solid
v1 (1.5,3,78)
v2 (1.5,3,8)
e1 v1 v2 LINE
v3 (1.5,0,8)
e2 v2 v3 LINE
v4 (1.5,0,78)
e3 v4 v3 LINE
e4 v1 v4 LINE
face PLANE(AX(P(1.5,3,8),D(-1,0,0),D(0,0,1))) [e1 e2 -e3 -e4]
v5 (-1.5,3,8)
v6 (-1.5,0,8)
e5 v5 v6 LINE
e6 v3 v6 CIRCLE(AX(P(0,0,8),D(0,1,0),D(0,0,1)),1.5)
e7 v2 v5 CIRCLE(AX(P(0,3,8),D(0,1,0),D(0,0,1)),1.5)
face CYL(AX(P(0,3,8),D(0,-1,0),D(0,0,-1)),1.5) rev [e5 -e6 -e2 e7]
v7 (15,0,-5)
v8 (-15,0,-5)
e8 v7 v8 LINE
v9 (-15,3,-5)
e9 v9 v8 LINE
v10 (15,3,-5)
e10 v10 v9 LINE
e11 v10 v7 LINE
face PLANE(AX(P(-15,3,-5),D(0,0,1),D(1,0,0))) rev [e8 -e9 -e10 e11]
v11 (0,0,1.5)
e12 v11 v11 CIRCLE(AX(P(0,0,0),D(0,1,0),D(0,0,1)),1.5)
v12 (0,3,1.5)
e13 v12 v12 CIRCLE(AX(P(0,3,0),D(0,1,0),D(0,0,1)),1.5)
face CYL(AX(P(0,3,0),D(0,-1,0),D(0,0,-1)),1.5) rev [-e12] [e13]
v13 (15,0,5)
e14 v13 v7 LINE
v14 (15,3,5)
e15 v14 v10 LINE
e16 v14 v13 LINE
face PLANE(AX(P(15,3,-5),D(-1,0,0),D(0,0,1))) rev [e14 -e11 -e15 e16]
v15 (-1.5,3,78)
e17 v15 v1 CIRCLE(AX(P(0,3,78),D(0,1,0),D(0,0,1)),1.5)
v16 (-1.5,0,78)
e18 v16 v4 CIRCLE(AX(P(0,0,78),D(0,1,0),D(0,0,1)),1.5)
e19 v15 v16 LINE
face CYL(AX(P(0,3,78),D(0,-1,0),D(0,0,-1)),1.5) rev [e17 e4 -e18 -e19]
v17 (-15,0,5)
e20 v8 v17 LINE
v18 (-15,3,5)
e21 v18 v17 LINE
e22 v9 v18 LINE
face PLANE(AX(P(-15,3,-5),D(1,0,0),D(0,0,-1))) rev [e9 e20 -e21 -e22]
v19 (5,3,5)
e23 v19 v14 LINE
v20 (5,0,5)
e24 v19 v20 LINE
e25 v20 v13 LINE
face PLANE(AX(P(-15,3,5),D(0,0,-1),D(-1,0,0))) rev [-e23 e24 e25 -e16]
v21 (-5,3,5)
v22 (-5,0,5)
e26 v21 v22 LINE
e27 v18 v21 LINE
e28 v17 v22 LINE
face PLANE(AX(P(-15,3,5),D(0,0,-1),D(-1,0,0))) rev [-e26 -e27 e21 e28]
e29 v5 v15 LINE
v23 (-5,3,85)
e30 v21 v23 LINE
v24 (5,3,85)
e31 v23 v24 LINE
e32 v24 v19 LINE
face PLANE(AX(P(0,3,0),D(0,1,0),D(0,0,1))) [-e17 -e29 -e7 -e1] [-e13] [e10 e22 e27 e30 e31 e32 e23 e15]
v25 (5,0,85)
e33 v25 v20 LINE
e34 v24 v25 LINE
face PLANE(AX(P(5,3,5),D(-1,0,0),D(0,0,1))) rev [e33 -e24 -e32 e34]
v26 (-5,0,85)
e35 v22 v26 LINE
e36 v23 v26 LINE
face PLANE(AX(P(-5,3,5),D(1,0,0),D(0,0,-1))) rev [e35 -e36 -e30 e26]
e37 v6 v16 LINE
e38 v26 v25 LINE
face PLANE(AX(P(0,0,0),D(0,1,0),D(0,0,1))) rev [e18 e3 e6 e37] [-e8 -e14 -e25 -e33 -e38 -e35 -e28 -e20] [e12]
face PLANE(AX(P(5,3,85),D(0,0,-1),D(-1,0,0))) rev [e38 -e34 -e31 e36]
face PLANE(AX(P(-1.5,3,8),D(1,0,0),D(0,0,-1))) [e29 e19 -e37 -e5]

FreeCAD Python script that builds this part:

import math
import FreeCAD as App
import Part
import Sketcher

V = App.Vector


def add_polygon(sketch, points):
    """Adds a closed chain of lines whose ends are joined by coincident constraints."""
    first, n = sketch.GeometryCount, len(points)
    for a, b in zip(points, points[1:] + points[:1]):
        sketch.addGeometry(Part.LineSegment(App.Vector(*a, 0), App.Vector(*b, 0)), False)
    for i in range(n):
        sketch.addConstraint(Sketcher.Constraint("Coincident", first + i, 2, first + (i + 1) % n, 1))

doc = App.newDocument("Part")
body = doc.addObject("PartDesign::Body", "Body")

# Sketch on XZ plane
sketch1 = body.newObject("Sketcher::SketchObject", "Sketch")
sketch1.AttachmentSupport = (doc.getObject("XZ_Plane"), [""])
sketch1.MapMode = "FlatFace"
add_polygon(sketch1, [(-15, -5), (-15, 5), (15, 5), (15, -5)])  # lines 0-3
sketch1.addGeometry(Part.Circle(V(0, 0, 0), V(0, 0, 1), 1.5), False)  # 4
sketch1.addConstraint([
    Sketcher.Constraint("Vertical", 0),
    Sketcher.Constraint("Horizontal", 1),
    Sketcher.Constraint("Vertical", 2),
    Sketcher.Constraint("Horizontal", 3),
    Sketcher.Constraint("Coincident", 4, 3, -1, 1),
    Sketcher.Constraint("Symmetric", 0, 2, 2, 2, -1, 1),
    Sketcher.Constraint("Diameter", 4, 3.0),
    Sketcher.Constraint("DistanceX", 1, 1, 1, 2, 30.0),
    Sketcher.Constraint("DistanceY", 0, 1, 0, 2, 10.0),
])
pad1 = body.newObject("PartDesign::Pad", "Pad")
pad1.Profile = sketch1
pad1.Length = 3
pad1.Reversed = True

# Sketch on XZ plane
sketch2 = body.newObject("Sketcher::SketchObject", "Sketch001")
sketch2.AttachmentSupport = (doc.getObject("XZ_Plane"), [""])
sketch2.MapMode = "FlatFace"
add_polygon(sketch2, [(-5, 5), (-5, 85), (5, 85), (5, 5)])  # lines 0-3
sketch2.addGeometry(Part.LineSegment(V(-1.5, 78, 0), V(-1.5, 8, 0)), False)  # 4
sketch2.addGeometry(Part.ArcOfCircle(Part.Circle(V(0, 8, 0), V(0, 0, 1), 1.5), math.radians(180), math.radians(360)), False)  # 5
sketch2.addGeometry(Part.LineSegment(V(1.5, 8, 0), V(1.5, 78, 0)), False)  # 6
sketch2.addGeometry(Part.ArcOfCircle(Part.Circle(V(0, 78, 0), V(0, 0, 1), 1.5), math.radians(0), math.radians(180)), False)  # 7
sketch2.addConstraint([
    Sketcher.Constraint("Tangent", 4, 2, 5, 1),
    Sketcher.Constraint("Tangent", 5, 2, 6, 1),
    Sketcher.Constraint("Tangent", 6, 2, 7, 1),
    Sketcher.Constraint("Tangent", 7, 2, 4, 1),
    Sketcher.Constraint("Vertical", 0),
    Sketcher.Constraint("Horizontal", 1),
    Sketcher.Constraint("Vertical", 2),
    Sketcher.Constraint("Horizontal", 3),
    Sketcher.Constraint("Vertical", 4),
    Sketcher.Constraint("Vertical", 6),
    Sketcher.Constraint("PointOnObject", 5, 3, -2),
    Sketcher.Constraint("Radius", 5, 1.5),
    Sketcher.Constraint("DistanceX", 1, 1, 1, 2, 10.0),
    Sketcher.Constraint("DistanceY", 0, 1, 0, 2, 80.0),
    Sketcher.Constraint("DistanceY", 4, 2, 4, 1, 70.0),
    Sketcher.Constraint("DistanceY", -1, 1, 5, 3, 8.0),
    Sketcher.Constraint("DistanceX", 0, 2, -1, 1, 5.0),
    Sketcher.Constraint("DistanceY", -1, 1, 0, 2, 85.0),
])
pad2 = body.newObject("PartDesign::Pad", "Pad001")
pad2.Profile = sketch2
pad2.Length = 3
pad2.Reversed = True

doc.recompute()
